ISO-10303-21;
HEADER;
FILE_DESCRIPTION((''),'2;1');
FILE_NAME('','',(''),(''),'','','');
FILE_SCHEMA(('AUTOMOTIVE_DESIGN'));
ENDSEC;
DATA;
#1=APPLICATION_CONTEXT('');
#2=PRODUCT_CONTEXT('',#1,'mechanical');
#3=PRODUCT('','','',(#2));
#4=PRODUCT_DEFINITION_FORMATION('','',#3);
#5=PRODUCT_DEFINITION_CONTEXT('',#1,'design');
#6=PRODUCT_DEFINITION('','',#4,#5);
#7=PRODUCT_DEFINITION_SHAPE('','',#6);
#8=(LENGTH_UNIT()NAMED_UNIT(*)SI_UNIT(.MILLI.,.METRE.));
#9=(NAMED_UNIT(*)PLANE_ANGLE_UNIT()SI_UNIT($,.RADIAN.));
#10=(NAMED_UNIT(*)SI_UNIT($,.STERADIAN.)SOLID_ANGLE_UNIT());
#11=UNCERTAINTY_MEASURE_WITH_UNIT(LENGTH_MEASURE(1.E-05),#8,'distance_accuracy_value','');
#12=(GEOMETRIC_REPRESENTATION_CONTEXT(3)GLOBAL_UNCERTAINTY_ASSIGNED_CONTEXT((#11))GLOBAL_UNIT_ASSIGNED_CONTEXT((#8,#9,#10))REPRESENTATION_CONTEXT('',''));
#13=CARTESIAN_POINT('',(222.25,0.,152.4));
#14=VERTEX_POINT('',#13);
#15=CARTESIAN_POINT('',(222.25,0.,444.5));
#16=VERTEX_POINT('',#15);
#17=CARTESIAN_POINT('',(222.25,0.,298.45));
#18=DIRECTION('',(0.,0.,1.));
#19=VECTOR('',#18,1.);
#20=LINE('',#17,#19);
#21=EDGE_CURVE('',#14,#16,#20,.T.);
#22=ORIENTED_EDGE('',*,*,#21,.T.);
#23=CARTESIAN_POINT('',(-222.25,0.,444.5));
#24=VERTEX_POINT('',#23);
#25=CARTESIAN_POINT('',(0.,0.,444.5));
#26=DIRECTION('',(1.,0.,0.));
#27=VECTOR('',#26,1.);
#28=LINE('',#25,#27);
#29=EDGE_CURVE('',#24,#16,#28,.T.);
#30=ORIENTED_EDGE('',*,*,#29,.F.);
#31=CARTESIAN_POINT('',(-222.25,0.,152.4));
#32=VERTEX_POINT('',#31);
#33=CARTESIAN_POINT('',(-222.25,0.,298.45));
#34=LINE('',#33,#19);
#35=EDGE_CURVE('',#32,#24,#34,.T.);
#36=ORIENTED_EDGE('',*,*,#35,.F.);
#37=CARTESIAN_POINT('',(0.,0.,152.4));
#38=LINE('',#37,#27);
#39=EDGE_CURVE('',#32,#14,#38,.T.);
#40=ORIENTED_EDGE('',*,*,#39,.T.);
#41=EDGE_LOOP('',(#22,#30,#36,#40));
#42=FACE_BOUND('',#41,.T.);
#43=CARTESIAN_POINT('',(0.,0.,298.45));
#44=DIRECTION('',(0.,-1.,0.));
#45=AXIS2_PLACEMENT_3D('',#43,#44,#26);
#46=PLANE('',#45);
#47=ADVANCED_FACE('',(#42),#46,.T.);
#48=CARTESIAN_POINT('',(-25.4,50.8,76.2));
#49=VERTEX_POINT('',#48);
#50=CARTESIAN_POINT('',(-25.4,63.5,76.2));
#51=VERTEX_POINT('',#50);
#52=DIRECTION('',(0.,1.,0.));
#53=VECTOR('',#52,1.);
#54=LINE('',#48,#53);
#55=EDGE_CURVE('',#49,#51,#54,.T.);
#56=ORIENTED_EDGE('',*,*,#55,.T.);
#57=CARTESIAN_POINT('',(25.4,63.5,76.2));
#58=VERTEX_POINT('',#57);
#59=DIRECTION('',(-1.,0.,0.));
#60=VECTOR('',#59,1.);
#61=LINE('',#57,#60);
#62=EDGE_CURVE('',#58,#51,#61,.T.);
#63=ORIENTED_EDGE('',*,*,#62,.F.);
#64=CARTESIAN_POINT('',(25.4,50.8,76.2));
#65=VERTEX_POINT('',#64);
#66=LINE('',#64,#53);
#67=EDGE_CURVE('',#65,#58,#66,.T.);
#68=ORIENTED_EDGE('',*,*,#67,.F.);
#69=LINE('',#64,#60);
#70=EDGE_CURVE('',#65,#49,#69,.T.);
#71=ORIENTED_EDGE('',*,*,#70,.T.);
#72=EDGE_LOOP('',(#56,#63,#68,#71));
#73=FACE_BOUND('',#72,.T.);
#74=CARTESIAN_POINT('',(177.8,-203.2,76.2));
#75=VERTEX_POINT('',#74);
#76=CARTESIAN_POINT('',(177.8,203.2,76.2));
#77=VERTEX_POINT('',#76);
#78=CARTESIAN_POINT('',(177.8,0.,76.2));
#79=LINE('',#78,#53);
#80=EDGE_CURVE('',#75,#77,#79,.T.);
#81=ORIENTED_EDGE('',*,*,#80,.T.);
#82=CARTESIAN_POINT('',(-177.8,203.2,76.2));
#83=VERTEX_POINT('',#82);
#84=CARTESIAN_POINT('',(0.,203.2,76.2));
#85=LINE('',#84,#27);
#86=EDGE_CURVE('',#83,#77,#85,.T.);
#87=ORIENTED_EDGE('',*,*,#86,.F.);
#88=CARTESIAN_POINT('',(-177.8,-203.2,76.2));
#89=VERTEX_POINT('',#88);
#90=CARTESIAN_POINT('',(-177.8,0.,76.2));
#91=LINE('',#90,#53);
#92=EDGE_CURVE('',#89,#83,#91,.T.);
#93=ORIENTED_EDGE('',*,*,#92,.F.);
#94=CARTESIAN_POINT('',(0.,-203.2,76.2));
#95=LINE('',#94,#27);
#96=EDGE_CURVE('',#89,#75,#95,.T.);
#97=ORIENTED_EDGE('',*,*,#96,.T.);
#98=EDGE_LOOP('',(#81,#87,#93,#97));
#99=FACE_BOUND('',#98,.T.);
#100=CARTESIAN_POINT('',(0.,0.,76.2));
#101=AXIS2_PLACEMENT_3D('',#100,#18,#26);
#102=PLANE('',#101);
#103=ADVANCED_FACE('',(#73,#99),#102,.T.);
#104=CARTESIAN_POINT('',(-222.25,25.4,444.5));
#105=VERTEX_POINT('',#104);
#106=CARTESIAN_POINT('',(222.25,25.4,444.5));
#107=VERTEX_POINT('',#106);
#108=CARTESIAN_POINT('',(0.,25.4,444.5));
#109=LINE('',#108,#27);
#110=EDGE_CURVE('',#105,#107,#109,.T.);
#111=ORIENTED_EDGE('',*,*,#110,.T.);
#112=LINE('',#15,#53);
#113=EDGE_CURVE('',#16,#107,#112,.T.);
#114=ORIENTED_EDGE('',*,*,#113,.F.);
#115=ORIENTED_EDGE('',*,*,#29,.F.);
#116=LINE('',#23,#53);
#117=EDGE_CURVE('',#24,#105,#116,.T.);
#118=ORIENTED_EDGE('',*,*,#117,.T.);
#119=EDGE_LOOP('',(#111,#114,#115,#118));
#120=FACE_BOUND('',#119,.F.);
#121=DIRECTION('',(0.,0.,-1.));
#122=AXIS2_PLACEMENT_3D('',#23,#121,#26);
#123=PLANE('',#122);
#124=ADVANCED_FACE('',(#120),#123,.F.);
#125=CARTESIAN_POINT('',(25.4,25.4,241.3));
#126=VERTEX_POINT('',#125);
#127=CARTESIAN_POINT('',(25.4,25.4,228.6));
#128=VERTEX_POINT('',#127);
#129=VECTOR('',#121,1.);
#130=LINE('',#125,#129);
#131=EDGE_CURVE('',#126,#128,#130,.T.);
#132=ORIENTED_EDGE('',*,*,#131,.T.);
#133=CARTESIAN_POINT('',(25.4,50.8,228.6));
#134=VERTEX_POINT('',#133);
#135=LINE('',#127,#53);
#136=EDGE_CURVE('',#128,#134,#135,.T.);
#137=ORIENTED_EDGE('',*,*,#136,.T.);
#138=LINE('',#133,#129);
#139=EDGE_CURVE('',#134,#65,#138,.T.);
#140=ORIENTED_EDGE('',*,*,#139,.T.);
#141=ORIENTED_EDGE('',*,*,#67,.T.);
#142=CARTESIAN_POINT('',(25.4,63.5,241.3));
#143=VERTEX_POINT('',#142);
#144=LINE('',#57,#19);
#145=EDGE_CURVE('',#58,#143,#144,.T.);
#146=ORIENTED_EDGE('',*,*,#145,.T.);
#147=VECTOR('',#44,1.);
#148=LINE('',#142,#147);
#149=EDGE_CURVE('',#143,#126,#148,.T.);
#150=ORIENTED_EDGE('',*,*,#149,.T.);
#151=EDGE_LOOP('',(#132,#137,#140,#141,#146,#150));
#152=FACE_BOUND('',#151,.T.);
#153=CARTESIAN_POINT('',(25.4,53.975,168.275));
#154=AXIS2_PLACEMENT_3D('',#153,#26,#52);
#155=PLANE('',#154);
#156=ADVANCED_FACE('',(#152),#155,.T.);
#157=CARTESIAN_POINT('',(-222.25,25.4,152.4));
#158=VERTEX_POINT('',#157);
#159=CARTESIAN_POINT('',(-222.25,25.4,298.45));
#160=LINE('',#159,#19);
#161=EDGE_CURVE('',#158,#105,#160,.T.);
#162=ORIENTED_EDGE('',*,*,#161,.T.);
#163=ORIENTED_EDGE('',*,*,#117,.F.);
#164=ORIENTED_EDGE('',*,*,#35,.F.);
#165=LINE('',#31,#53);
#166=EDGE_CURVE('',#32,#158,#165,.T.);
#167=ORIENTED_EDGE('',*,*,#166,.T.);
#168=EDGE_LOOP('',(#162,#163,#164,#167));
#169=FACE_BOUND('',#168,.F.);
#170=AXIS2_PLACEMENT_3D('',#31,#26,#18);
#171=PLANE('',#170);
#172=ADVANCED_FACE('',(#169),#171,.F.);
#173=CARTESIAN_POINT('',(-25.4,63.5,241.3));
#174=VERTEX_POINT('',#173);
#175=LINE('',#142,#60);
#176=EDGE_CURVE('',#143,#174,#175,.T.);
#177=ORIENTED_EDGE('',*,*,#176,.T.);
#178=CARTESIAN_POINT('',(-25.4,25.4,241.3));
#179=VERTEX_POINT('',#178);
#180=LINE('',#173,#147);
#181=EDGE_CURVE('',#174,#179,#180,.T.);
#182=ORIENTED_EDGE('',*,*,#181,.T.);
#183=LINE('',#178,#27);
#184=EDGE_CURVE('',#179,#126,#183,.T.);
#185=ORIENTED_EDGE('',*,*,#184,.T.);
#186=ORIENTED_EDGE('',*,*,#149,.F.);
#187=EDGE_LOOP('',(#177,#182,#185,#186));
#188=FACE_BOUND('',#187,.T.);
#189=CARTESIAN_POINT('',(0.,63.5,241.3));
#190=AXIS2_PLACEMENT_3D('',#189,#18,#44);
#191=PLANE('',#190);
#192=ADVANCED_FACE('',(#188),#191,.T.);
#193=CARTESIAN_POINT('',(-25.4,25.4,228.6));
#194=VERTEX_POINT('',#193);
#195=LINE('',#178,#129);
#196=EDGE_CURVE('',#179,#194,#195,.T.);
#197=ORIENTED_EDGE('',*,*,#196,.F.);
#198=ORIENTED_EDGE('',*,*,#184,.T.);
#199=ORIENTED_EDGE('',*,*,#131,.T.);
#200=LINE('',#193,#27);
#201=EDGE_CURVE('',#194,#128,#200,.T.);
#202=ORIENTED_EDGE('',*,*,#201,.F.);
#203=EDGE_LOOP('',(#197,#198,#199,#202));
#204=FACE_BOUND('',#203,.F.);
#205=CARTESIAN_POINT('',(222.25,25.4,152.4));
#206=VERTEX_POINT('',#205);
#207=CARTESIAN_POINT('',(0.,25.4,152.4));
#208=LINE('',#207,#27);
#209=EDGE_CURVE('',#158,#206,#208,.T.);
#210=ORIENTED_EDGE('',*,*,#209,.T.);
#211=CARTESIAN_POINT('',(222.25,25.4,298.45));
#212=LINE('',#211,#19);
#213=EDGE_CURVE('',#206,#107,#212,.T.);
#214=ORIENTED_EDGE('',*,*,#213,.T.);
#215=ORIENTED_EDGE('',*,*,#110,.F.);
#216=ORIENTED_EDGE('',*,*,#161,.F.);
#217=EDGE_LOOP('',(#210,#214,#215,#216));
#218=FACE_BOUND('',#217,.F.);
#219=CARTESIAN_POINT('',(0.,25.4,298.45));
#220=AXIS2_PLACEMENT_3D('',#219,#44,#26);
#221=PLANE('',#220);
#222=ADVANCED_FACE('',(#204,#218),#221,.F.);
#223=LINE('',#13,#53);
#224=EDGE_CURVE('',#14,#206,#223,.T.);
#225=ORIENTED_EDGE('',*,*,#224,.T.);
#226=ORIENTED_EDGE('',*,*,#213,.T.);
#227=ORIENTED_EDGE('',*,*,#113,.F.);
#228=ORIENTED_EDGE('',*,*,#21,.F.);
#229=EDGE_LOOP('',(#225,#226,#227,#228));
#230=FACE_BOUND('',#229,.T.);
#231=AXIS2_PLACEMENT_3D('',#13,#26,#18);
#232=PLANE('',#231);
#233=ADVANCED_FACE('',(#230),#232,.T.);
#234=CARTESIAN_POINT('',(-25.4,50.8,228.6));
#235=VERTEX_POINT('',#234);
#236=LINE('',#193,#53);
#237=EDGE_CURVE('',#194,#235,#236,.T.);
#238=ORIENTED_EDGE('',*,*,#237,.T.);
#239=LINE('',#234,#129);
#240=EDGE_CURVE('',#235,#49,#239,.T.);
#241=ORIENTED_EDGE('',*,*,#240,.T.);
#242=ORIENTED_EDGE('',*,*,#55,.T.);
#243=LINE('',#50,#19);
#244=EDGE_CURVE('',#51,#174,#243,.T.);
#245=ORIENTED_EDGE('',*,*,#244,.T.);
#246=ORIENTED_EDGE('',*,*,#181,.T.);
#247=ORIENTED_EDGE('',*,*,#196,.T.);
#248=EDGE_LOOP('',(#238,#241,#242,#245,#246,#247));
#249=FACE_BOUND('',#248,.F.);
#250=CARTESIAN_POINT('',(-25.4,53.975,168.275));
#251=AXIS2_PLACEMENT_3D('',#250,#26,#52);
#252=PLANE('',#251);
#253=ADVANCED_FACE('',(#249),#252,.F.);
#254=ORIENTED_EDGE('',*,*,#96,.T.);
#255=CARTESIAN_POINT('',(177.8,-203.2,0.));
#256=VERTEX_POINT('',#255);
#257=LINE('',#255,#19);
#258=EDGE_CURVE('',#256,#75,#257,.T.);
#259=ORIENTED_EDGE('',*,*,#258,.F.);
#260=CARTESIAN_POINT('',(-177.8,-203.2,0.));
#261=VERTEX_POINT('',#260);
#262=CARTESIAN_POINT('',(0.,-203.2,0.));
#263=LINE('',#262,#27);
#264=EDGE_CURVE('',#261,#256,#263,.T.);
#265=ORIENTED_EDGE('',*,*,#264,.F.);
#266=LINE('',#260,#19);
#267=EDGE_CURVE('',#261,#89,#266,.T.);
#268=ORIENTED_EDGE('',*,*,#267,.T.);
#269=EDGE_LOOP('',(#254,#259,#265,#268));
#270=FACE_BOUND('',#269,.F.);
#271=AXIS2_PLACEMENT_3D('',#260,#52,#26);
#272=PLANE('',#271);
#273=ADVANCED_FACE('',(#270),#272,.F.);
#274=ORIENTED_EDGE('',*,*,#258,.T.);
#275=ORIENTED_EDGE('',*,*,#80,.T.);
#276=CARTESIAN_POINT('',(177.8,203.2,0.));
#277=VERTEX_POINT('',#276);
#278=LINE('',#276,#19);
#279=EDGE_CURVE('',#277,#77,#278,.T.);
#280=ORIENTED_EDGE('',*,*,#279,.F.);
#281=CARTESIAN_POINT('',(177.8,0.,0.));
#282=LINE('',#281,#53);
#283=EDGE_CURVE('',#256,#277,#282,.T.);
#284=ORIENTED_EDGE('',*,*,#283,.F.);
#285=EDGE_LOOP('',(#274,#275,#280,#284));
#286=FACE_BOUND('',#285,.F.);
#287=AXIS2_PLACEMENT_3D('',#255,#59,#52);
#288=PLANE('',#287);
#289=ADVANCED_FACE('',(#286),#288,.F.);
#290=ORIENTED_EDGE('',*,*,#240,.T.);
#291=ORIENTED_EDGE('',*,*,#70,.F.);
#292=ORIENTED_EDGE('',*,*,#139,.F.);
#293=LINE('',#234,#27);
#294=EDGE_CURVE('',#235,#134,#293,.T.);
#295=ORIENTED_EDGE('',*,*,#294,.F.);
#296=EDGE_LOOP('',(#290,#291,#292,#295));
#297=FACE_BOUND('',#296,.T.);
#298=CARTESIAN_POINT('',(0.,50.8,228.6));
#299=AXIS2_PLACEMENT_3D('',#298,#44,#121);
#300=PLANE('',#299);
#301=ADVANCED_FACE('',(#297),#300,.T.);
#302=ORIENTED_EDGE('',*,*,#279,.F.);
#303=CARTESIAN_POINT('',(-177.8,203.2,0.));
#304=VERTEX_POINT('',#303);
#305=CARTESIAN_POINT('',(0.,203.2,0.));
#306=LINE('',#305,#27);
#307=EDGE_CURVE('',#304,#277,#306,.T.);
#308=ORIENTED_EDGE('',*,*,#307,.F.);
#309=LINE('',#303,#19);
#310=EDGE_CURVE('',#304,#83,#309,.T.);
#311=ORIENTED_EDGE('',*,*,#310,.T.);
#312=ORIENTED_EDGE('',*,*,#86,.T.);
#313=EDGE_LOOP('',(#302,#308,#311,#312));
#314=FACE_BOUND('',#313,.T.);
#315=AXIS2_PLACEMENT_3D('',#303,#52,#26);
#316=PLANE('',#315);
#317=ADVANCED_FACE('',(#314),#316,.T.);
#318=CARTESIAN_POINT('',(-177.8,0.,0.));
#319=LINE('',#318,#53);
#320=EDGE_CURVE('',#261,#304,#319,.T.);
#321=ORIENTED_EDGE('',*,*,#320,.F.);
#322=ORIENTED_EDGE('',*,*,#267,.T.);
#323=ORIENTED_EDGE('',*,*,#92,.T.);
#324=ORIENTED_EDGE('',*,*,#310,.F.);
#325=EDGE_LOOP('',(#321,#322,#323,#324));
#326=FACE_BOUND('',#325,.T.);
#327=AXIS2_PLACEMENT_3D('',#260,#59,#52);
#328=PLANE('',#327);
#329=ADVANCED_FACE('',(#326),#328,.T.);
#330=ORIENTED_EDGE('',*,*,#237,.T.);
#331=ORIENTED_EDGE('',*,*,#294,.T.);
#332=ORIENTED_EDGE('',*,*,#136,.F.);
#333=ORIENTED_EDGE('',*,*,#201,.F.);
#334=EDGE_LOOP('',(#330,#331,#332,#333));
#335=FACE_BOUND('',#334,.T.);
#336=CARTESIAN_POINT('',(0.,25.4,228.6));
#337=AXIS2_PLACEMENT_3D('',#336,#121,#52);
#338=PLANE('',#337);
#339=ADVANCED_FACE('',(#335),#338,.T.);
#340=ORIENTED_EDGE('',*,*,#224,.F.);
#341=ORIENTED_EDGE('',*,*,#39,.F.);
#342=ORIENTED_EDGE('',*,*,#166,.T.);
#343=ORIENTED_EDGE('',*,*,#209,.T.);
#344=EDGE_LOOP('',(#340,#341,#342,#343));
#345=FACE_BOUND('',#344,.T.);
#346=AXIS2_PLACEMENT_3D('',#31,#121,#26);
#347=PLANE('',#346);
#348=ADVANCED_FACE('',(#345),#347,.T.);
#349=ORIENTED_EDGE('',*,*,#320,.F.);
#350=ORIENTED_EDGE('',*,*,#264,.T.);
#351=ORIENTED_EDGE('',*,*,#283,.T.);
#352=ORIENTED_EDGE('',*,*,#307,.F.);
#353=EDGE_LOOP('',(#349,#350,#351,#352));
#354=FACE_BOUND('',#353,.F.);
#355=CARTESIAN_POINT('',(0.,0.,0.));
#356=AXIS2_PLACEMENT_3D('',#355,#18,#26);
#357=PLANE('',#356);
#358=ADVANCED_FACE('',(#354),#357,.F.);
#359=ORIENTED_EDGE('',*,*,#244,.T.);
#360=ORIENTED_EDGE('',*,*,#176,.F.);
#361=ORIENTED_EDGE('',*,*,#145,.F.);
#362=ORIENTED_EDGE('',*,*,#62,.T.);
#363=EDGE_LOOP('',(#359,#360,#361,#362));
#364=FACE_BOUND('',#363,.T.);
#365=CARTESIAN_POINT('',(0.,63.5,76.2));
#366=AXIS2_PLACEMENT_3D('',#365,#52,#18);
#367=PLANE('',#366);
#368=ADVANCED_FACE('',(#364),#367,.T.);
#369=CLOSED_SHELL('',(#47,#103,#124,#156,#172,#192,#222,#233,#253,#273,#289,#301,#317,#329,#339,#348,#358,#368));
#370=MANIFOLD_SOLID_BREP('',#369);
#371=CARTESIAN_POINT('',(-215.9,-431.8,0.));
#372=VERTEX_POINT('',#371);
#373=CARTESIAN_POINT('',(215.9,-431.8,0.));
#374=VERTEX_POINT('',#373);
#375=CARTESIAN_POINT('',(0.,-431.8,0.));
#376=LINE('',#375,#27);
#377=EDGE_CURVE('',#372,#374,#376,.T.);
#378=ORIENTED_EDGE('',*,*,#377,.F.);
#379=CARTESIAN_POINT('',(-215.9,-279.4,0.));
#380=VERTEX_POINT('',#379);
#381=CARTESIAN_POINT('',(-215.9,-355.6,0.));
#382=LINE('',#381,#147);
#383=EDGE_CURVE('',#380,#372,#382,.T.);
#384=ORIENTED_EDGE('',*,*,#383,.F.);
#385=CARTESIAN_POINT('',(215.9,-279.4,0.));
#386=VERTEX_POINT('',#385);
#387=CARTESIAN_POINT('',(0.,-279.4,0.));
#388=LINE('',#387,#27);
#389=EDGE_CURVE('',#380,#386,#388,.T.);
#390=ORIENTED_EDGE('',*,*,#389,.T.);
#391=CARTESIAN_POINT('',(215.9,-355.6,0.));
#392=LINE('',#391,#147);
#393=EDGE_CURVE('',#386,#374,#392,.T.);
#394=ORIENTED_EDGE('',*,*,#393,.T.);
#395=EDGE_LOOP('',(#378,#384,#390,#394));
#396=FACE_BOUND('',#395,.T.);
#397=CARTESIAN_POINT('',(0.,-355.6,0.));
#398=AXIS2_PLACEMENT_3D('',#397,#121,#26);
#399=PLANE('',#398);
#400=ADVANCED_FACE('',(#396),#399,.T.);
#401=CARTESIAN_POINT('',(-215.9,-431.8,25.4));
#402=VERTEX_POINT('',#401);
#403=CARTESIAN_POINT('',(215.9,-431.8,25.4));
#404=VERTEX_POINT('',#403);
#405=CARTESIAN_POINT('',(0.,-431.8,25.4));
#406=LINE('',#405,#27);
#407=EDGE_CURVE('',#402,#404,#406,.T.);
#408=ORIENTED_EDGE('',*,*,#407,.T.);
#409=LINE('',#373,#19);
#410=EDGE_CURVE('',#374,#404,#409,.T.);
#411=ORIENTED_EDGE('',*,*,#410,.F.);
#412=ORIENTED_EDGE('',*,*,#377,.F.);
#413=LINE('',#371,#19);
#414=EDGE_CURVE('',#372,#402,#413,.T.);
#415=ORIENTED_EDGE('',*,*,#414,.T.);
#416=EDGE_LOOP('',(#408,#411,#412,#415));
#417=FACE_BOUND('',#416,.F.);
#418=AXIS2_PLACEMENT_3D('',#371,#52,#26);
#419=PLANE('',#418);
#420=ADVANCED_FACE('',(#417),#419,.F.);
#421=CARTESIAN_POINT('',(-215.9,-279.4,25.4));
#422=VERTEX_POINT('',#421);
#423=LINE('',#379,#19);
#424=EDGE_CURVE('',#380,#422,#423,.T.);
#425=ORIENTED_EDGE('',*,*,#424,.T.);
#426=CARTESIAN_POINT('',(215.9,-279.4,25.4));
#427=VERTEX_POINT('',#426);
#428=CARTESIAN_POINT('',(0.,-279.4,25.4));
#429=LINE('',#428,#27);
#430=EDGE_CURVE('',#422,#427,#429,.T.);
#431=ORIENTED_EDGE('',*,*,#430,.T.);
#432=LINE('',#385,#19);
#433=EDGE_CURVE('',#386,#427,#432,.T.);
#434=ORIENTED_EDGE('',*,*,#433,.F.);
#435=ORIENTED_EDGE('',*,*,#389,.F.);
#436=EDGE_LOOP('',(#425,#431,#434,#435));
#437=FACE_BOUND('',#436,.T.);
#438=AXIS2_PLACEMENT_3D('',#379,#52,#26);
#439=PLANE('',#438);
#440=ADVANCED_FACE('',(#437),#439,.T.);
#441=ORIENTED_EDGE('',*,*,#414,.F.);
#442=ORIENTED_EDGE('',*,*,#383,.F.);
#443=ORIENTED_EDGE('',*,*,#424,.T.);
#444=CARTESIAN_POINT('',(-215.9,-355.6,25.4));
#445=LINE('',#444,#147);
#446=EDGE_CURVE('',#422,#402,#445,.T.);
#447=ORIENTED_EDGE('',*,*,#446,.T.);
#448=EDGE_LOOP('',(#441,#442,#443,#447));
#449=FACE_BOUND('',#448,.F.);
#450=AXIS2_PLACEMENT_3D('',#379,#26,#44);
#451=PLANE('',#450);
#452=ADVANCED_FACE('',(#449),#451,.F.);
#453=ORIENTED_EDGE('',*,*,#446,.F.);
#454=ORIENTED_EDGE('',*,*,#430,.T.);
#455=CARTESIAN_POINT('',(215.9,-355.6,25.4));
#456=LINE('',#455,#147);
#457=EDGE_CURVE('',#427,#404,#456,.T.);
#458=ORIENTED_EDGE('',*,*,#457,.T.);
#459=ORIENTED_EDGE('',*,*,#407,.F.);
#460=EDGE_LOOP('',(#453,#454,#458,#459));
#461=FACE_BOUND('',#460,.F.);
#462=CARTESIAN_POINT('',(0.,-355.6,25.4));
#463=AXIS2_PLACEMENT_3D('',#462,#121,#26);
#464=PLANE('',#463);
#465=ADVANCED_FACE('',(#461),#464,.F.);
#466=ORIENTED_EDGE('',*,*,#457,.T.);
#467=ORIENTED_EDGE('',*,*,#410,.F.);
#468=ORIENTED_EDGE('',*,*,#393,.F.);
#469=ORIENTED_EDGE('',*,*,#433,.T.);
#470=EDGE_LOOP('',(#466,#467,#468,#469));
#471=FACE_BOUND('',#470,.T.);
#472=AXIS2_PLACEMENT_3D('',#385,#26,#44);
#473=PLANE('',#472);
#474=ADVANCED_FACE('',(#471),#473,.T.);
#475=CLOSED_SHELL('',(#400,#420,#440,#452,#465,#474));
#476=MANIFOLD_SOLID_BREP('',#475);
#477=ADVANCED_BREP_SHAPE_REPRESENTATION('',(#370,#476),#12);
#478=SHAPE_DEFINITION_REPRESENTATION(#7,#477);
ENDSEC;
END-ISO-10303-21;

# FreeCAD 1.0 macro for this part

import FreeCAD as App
import Part
import Sketcher
from FreeCAD import Vector
Q = App.Units.Quantity


def add_polygon(sketch, points):
    """Adds a closed chain of lines whose ends are joined by coincident constraints."""
    first, n = sketch.GeometryCount, len(points)
    for a, b in zip(points, points[1:] + points[:1]):
        sketch.addGeometry(Part.LineSegment(App.Vector(*a, 0), App.Vector(*b, 0)), False)
    for i in range(n):
        sketch.addConstraint(Sketcher.Constraint("Coincident", first + i, 2, first + (i + 1) % n, 1))

doc = App.newDocument("Part")
body = doc.addObject("PartDesign::Body", "Body")

sketch1 = body.newObject("Sketcher::SketchObject", "Sketch")
sketch1.AttachmentSupport = (doc.getObject("XY_Plane"), [""])
sketch1.MapMode = "FlatFace"
add_polygon(sketch1, [(-178, 203), (-178, -203), (178, -203), (178, 203)])
sketch1.addConstraint([
    Sketcher.Constraint("Vertical", 0),
    Sketcher.Constraint("Horizontal", 1),
    Sketcher.Constraint("Vertical", 2),
    Sketcher.Constraint("Horizontal", 3),
    Sketcher.Constraint("Symmetric", 0, 2, 2, 2, -1, 1),
    Sketcher.Constraint("DistanceX", 1, 1, 1, 2, Q("14 in")),
    Sketcher.Constraint("DistanceY", 0, 2, 0, 1, Q("16 in")),
])
pad1 = body.newObject("PartDesign::Pad", "Pad")
pad1.Profile = sketch1
pad1.Length = Q("3 in")

sketch2 = body.newObject("Sketcher::SketchObject", "Sketch001")
sketch2.AttachmentSupport = (doc.getObject("YZ_Plane"), [""])
sketch2.MapMode = "FlatFace"
add_polygon(sketch2, [(64, 241), (25, 241), (25, 229), (51, 229), (51, 76), (64, 76)])
sketch2.addConstraint([
    Sketcher.Constraint("Horizontal", 0),
    Sketcher.Constraint("Vertical", 1),
    Sketcher.Constraint("Horizontal", 2),
    Sketcher.Constraint("Vertical", 3),
    Sketcher.Constraint("Horizontal", 4),
    Sketcher.Constraint("Vertical", 5),
    Sketcher.Constraint("Equal", 4, 1),
    Sketcher.Constraint("DistanceX", 2, 1, 2, 2, Q("1 in")),
    Sketcher.Constraint("DistanceY", 3, 2, 3, 1, Q("6 in")),
    Sketcher.Constraint("DistanceX", 0, 2, 0, 1, Q("1.5 in")),
    Sketcher.Constraint("DistanceX", -1, 1, 0, 2, Q("1 in")),
    Sketcher.Constraint("DistanceY", -1, 1, 1, 2, Q("9 in")),
])
pad2 = body.newObject("PartDesign::Pad", "Pad001")
pad2.Profile = sketch2
pad2.Length = Q("2 in")
pad2.Midplane = True

sketch3 = body.newObject("Sketcher::SketchObject", "Sketch002")
sketch3.AttachmentSupport = (doc.getObject("XZ_Plane"), [""])
sketch3.MapMode = "FlatFace"
add_polygon(sketch3, [(-222, 444), (-222, 152), (222, 152), (222, 444)])
sketch3.addConstraint([
    Sketcher.Constraint("Vertical", 0),
    Sketcher.Constraint("Horizontal", 1),
    Sketcher.Constraint("Vertical", 2),
    Sketcher.Constraint("Horizontal", 3),
    Sketcher.Constraint("DistanceX", 1, 1, 1, 2, Q("17.5 in")),
    Sketcher.Constraint("DistanceY", 0, 2, 0, 1, Q("11.5 in")),
    Sketcher.Constraint("DistanceY", -1, 1, 0, 2, Q("6 in")),
    Sketcher.Constraint("DistanceX", 0, 2, -1, 1, Q("8.75 in")),
])
pad3 = body.newObject("PartDesign::Pad", "Pad002")
pad3.Profile = sketch3
pad3.Length = Q("1 in")
pad3.Reversed = True
body2 = doc.addObject("PartDesign::Body", "Body001")

sketch4 = body2.newObject("Sketcher::SketchObject", "Sketch003")
sketch4.AttachmentSupport = (doc.getObject("XY_Plane001"), [""])
sketch4.MapMode = "FlatFace"
add_polygon(sketch4, [(-216, -432), (-216, -279), (216, -279), (216, -432)])
sketch4.addConstraint([
    Sketcher.Constraint("Vertical", 0),
    Sketcher.Constraint("Horizontal", 1),
    Sketcher.Constraint("Vertical", 2),
    Sketcher.Constraint("Horizontal", 3),
    Sketcher.Constraint("DistanceX", 1, 1, 1, 2, Q("17 in")),
    Sketcher.Constraint("DistanceY", 0, 1, 0, 2, Q("6 in")),
    Sketcher.Constraint("DistanceY", 0, 2, -1, 1, Q("11 in")),
    Sketcher.Constraint("DistanceX", 0, 2, -1, 1, Q("8.5 in")),
])
pad4 = body2.newObject("PartDesign::Pad", "Pad003")
pad4.Profile = sketch4
pad4.Length = Q("1 in")

doc.recompute()
